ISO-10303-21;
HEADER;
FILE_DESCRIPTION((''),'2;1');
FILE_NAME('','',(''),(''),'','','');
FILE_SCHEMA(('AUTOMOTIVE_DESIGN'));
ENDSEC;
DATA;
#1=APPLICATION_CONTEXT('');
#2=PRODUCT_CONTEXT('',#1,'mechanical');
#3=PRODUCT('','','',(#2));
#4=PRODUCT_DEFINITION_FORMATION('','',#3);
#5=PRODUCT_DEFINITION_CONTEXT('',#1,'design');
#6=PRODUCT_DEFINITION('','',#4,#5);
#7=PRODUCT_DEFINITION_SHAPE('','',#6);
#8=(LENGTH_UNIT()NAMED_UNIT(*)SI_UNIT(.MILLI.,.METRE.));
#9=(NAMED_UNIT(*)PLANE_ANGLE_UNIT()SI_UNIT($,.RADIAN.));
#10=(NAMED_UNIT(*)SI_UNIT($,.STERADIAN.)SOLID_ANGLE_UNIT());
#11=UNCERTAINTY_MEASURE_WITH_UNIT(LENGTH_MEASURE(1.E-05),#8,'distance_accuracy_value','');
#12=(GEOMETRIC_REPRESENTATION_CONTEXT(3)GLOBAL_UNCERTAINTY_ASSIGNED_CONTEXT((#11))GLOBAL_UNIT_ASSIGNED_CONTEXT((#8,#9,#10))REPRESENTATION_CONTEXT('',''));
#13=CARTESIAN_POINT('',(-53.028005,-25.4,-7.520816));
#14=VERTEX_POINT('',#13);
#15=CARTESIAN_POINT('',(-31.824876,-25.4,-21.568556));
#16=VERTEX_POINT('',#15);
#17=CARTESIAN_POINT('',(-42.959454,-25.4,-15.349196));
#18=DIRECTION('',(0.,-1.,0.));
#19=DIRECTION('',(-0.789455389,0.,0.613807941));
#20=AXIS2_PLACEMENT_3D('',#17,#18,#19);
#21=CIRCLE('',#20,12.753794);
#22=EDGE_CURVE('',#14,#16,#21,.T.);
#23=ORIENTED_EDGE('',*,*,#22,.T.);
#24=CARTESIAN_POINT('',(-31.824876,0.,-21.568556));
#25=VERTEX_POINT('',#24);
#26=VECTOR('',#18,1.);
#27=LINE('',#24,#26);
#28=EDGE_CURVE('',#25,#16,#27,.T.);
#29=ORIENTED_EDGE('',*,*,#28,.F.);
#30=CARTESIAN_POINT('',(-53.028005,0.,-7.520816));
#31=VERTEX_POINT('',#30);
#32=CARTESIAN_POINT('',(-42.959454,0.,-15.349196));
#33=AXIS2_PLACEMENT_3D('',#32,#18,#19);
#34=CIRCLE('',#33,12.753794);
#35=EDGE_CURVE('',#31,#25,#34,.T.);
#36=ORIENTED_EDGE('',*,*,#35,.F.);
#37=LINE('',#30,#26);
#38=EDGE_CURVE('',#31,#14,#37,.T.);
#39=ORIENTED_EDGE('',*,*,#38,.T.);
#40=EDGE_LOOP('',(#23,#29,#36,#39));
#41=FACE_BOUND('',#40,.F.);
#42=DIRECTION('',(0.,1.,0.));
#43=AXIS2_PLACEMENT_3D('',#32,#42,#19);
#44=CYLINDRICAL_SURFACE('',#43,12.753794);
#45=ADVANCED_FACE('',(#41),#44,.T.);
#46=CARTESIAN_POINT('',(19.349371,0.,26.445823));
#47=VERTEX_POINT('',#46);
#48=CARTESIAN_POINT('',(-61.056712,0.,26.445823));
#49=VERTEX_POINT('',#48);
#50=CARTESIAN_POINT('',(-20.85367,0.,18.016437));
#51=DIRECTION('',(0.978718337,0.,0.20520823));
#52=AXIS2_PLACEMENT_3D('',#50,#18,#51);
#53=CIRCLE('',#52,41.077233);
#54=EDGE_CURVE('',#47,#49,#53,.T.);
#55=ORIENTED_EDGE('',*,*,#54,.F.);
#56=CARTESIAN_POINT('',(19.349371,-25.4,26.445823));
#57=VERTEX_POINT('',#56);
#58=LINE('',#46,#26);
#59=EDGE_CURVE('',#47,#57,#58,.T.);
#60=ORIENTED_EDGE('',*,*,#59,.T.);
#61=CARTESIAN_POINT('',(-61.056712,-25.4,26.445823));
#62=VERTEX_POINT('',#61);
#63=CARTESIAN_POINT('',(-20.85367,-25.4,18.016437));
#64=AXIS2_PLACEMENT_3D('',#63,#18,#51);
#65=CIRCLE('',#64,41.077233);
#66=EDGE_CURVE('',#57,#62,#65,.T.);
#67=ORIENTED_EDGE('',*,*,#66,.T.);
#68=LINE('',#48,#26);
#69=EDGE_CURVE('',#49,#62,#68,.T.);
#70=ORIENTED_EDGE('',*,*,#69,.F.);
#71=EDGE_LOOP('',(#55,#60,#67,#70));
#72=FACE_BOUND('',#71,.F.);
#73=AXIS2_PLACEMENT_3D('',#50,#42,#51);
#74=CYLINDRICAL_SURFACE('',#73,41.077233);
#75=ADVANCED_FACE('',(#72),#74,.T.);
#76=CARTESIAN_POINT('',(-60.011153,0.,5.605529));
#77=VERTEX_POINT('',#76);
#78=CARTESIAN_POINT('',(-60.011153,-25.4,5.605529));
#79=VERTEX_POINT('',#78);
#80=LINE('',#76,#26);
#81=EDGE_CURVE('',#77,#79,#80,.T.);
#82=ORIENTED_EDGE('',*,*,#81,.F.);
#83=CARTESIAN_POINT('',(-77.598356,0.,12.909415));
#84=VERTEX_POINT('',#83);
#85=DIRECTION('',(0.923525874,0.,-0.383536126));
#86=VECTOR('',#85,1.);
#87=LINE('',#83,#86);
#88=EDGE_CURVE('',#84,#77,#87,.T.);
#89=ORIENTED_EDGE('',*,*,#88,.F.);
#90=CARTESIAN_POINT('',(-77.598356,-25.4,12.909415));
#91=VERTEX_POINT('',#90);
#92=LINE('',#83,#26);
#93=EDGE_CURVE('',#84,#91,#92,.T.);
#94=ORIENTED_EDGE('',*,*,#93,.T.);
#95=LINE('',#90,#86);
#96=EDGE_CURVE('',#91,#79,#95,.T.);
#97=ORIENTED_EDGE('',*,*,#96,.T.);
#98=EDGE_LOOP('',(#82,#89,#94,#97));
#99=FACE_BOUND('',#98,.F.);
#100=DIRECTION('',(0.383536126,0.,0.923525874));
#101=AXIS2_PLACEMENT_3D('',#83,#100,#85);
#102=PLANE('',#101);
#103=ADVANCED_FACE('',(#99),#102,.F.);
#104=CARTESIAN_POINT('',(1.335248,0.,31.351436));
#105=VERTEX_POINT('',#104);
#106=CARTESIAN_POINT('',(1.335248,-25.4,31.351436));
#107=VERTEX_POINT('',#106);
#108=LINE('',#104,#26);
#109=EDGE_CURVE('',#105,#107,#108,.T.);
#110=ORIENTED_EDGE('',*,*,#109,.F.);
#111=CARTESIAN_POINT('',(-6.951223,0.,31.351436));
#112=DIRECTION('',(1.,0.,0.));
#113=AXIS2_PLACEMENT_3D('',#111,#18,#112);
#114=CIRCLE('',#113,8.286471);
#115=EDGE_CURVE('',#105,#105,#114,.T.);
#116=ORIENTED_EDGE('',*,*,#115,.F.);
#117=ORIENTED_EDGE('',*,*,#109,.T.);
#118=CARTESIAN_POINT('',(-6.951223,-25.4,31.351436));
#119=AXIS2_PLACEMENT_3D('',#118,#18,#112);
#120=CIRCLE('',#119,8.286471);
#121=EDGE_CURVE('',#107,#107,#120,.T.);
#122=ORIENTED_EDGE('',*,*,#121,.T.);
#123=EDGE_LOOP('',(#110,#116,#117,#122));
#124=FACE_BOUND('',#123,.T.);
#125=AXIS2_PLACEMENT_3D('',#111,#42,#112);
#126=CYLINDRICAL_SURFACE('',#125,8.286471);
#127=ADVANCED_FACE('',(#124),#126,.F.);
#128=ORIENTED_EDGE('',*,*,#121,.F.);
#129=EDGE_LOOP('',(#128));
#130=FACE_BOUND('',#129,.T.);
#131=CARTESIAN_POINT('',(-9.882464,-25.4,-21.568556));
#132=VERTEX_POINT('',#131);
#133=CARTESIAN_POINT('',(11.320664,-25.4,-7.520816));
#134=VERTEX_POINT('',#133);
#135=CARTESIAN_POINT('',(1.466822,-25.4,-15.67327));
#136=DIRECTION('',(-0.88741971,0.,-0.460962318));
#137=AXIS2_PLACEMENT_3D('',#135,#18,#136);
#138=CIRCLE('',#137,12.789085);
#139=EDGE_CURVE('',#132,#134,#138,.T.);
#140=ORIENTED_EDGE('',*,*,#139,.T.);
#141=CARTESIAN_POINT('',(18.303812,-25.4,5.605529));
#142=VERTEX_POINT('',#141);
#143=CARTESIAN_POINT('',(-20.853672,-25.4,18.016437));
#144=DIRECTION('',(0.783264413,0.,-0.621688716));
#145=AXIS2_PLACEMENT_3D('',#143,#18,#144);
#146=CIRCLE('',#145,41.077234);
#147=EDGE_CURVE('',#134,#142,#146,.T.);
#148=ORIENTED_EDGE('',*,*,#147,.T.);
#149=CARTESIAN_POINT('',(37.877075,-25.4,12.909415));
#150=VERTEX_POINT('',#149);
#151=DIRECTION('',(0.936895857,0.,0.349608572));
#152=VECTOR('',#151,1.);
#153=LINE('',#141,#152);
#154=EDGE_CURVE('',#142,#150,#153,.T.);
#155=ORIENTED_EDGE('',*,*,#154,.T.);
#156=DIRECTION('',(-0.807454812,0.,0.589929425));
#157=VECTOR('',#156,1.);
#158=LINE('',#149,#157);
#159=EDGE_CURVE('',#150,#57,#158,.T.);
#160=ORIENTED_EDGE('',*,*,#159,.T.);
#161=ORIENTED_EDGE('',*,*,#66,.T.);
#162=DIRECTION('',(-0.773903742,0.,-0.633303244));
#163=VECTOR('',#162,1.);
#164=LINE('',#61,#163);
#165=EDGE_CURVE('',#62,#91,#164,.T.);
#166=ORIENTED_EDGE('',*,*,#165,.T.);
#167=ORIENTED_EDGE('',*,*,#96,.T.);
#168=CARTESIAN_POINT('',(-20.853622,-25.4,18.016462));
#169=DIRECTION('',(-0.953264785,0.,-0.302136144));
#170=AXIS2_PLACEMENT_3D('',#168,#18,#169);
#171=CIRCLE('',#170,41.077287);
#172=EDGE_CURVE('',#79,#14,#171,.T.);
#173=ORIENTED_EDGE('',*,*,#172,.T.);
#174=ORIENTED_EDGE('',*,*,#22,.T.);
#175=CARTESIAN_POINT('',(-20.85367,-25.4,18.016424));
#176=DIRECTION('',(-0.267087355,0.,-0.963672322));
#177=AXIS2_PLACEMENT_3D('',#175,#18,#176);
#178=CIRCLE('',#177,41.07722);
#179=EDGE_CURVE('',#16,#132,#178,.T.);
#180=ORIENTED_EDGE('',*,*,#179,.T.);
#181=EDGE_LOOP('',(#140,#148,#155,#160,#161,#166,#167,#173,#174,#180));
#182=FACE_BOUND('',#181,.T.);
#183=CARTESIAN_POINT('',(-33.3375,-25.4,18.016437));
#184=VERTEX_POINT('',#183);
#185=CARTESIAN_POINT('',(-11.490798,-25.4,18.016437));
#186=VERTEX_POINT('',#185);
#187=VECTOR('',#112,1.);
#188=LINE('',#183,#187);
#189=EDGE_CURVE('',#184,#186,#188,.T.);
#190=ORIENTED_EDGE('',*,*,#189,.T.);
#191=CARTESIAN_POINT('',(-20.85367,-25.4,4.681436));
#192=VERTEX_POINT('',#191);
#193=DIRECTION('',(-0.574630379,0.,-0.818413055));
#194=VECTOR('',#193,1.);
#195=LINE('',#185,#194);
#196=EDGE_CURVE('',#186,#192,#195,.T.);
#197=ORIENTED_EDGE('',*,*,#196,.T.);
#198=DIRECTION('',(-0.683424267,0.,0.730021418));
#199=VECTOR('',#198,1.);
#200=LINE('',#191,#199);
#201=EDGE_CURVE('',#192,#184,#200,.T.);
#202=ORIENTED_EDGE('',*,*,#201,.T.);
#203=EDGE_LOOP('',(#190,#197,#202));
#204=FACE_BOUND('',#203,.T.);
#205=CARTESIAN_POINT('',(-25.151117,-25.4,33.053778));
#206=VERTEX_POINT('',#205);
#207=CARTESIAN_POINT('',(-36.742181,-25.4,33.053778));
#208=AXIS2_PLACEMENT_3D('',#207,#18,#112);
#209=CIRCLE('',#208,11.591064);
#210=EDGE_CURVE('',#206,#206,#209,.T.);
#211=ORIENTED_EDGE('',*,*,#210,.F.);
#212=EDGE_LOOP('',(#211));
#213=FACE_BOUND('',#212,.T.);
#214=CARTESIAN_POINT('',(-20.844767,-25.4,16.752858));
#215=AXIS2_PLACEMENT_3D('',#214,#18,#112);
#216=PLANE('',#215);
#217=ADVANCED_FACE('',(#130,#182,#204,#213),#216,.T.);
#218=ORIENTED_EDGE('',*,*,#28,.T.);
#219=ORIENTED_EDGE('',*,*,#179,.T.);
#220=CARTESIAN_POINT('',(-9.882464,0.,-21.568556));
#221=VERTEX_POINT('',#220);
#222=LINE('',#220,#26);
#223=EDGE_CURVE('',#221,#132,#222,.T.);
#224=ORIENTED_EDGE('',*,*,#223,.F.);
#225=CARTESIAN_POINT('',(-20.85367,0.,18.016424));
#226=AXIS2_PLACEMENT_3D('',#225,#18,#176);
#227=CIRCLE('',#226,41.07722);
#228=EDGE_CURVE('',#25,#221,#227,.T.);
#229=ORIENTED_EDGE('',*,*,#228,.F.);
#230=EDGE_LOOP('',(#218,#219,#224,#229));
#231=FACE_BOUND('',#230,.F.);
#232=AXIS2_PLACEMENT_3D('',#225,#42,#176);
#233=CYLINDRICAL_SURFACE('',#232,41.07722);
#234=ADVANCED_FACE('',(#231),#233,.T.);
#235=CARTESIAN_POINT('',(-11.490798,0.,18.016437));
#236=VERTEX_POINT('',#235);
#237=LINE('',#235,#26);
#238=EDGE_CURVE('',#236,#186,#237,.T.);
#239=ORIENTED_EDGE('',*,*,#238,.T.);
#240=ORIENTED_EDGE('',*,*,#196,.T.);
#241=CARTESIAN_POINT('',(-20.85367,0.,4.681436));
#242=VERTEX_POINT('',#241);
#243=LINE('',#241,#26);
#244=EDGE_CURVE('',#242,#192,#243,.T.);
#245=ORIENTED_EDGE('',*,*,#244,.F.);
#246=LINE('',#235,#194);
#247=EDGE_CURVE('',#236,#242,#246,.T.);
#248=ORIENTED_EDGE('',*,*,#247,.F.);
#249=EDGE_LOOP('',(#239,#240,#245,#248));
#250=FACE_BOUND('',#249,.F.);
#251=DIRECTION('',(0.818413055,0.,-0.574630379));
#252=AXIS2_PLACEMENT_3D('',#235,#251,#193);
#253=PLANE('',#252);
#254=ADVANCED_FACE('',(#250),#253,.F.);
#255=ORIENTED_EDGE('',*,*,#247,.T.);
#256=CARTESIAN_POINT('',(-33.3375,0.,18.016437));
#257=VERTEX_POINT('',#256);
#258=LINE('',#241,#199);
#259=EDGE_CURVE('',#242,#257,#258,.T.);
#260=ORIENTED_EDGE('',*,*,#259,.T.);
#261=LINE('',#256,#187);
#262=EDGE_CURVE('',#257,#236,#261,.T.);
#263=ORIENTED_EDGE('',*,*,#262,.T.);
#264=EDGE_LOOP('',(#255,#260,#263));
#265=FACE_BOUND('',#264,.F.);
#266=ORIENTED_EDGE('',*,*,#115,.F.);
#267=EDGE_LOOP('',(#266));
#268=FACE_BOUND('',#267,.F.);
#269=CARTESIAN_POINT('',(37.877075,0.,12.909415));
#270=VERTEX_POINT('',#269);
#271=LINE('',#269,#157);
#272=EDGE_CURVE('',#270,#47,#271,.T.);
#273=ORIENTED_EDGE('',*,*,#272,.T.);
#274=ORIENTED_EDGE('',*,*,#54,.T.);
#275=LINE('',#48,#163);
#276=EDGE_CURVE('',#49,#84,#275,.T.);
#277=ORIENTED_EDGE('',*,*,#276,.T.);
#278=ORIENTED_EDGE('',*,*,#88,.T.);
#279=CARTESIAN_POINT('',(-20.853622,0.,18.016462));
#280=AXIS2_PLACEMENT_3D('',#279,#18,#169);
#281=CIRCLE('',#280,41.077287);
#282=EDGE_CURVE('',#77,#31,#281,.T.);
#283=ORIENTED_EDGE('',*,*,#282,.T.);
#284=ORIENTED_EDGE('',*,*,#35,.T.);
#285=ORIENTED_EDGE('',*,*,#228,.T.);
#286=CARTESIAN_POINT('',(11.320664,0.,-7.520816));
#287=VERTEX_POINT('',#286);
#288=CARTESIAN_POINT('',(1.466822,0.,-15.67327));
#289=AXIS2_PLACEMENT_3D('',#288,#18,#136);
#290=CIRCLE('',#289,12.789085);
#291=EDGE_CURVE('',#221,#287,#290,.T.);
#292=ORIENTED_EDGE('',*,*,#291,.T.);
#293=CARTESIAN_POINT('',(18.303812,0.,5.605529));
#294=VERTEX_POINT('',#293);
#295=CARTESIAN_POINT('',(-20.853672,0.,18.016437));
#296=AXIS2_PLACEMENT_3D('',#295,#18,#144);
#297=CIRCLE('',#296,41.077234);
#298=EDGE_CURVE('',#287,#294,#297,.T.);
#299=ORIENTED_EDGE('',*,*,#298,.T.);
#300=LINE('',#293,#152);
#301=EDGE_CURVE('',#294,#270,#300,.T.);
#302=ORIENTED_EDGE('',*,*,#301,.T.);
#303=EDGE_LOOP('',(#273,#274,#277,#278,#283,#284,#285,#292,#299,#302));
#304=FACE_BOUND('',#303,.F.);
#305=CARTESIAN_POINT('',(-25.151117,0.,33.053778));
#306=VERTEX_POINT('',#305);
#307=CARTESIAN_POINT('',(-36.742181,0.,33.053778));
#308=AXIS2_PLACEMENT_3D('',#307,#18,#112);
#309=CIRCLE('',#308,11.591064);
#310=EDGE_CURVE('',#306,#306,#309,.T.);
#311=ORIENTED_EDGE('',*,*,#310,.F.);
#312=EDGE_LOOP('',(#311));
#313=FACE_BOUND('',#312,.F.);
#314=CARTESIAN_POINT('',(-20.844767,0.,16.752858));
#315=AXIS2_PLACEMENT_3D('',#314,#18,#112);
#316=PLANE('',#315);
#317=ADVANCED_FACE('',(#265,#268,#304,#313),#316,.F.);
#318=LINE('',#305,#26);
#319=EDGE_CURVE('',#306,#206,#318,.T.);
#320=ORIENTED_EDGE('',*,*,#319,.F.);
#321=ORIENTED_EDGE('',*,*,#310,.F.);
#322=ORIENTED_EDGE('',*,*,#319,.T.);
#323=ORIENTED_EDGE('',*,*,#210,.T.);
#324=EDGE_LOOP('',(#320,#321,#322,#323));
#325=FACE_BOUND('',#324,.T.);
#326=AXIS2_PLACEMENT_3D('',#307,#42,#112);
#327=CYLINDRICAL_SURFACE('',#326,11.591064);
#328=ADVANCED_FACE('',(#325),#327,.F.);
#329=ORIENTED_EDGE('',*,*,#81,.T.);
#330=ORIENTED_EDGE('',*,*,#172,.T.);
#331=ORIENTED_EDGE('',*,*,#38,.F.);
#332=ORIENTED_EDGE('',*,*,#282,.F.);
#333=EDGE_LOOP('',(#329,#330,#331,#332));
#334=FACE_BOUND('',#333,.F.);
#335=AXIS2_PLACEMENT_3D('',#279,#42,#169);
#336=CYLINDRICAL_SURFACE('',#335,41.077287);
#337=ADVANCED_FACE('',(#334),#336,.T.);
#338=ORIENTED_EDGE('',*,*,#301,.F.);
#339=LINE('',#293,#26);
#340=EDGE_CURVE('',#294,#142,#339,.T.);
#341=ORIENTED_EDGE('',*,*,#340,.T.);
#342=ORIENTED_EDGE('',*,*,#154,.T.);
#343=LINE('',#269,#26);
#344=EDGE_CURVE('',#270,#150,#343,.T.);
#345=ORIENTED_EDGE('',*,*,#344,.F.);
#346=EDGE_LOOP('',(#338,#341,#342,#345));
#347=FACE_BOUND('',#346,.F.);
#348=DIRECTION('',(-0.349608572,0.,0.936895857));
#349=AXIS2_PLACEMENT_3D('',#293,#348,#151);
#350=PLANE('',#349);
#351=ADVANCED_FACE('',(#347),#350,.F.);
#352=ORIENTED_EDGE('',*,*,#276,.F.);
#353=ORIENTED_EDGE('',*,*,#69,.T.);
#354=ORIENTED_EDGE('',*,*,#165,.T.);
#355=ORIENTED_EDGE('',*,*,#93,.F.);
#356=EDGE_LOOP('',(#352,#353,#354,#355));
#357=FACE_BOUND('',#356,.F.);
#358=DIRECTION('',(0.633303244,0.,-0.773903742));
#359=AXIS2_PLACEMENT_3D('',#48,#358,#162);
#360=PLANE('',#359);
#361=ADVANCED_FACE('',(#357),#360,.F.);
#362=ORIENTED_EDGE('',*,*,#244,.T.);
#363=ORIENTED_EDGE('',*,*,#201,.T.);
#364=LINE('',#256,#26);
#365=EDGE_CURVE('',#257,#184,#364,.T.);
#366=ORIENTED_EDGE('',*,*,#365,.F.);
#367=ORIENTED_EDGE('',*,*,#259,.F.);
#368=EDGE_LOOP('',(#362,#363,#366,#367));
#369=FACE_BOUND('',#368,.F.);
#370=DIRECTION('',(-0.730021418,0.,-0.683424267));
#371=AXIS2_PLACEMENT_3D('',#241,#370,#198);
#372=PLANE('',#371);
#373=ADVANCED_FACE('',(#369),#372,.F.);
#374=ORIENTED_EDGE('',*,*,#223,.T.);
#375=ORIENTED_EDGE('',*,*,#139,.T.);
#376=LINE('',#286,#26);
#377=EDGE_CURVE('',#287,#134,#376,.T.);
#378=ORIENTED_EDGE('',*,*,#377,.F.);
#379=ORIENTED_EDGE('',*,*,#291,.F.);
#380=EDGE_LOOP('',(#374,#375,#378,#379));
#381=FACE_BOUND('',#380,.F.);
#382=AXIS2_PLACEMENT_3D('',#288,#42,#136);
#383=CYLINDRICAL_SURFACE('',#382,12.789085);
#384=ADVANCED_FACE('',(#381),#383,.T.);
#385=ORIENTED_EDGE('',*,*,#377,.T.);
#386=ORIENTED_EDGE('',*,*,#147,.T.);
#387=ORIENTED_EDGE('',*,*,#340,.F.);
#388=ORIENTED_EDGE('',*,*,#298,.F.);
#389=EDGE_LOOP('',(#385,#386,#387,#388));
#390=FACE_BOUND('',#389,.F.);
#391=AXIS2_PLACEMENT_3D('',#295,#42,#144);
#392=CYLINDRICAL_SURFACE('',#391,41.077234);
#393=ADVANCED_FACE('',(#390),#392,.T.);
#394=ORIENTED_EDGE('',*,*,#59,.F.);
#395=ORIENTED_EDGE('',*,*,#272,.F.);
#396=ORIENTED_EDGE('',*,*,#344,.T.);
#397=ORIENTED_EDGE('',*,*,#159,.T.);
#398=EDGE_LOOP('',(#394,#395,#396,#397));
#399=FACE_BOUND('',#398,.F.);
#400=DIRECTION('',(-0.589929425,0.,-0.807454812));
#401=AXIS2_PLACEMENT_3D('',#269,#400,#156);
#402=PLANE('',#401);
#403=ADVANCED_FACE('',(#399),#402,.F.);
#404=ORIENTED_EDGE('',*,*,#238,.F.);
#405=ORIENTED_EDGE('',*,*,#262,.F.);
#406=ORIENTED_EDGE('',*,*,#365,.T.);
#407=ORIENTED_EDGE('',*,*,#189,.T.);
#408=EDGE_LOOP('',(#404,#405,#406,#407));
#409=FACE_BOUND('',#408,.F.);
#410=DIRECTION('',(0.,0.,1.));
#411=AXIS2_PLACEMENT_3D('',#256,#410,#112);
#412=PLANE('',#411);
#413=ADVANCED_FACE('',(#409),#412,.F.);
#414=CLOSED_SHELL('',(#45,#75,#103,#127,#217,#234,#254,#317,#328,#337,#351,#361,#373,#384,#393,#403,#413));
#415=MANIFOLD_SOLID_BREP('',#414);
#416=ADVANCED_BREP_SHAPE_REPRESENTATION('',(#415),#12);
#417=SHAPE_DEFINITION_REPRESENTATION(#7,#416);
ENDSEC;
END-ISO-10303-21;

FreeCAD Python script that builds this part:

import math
import FreeCAD as App
import Part
import Sketcher

V = App.Vector
Q = App.Units.Quantity


def add_polygon(sketch, points):
    """Adds a closed chain of lines whose ends are joined by coincident constraints."""
    first, n = sketch.GeometryCount, len(points)
    for a, b in zip(points, points[1:] + points[:1]):
        sketch.addGeometry(Part.LineSegment(App.Vector(*a, 0), App.Vector(*b, 0)), False)
    for i in range(n):
        sketch.addConstraint(Sketcher.Constraint("Coincident", first + i, 2, first + (i + 1) % n, 1))

doc = App.newDocument("Part")
body = doc.addObject("PartDesign::Body", "Body")

sketch1 = doc.addObject("Sketcher::SketchObject", "Sketch")
body.addObject(sketch1)
sketch1.AttachmentSupport = (doc.XZ_Plane, [""])
sketch1.MapMode = "FlatFace"
sketch1.addGeometry(Part.ArcOfCircle(Part.Circle(V(-20.853672, 18.016437, 0), V(0, 0, 1), 41.077234), math.radians(-38.439559), math.radians(-17.585937)), False)
sketch1.addGeometry(Part.LineSegment(V(18.303812, 5.605529, 0), V(37.877075, 12.909415, 0)), False)
sketch1.addGeometry(Part.LineSegment(V(37.877075, 12.909415, 0), V(19.349371, 26.445823, 0)), False)
sketch1.addGeometry(Part.ArcOfCircle(Part.Circle(V(-20.85367, 18.016437, 0), V(0, 0, 1), 41.077233), math.radians(11.841689), math.radians(168.158311)), False)
sketch1.addGeometry(Part.LineSegment(V(-61.056712, 26.445823, 0), V(-77.598356, 12.909415, 0)), False)
sketch1.addGeometry(Part.LineSegment(V(-77.598356, 12.909415, 0), V(-60.011153, 5.605529, 0)), False)
sketch1.addGeometry(Part.ArcOfCircle(Part.Circle(V(-20.853622, 18.016462, 0), V(0, 0, 1), 41.077287), math.radians(-162.41405), math.radians(-141.560455)), False)
sketch1.addGeometry(Part.ArcOfCircle(Part.Circle(V(-42.959454, -15.349196, 0), V(0, 0, 1), 12.753794), math.radians(142.134646), math.radians(330.813902)), False)
sketch1.addGeometry(Part.ArcOfCircle(Part.Circle(V(-20.85367, 18.016424, 0), V(0, 0, 1), 41.07722), math.radians(-105.491021), math.radians(-74.508979)), False)
sketch1.addGeometry(Part.ArcOfCircle(Part.Circle(V(1.466822, -15.67327, 0), V(0, 0, 1), 12.789085), math.radians(-152.550778), math.radians(39.602233)), False)
add_polygon(sketch1, [(-20.85367, 4.681436), (-33.3375, 18.016437), (-11.490798, 18.016437)])
sketch1.addGeometry(Part.Circle(V(-36.742181, 33.053778, 0), V(0, 0, 1), 11.591064), False)
sketch1.addGeometry(Part.Circle(V(-6.951223, 31.351436, 0), V(0, 0, 1), 8.286471), False)
sketch1.addConstraint([
    Sketcher.Constraint("Coincident", 0, 2, 1, 1),
    Sketcher.Constraint("Coincident", 1, 2, 2, 1),
    Sketcher.Constraint("Coincident", 2, 2, 3, 1),
    Sketcher.Constraint("Coincident", 3, 2, 4, 1),
    Sketcher.Constraint("Coincident", 4, 2, 5, 1),
    Sketcher.Constraint("Coincident", 5, 2, 6, 1),
    Sketcher.Constraint("Coincident", 6, 2, 7, 1),
    Sketcher.Constraint("Coincident", 7, 2, 8, 1),
    Sketcher.Constraint("Coincident", 8, 2, 9, 1),
    Sketcher.Constraint("Coincident", 9, 2, 0, 1),
    Sketcher.Constraint("Horizontal", 11),
    Sketcher.Constraint("Coincident", 3, 3, 0, 3),
    Sketcher.Constraint("DistanceX", 10, 2, -1, 1, Q("1.3125 in")),
    Sketcher.Constraint("Radius", 8, Q("41.07722 mm")),
    Sketcher.Constraint("DistanceY", 3, 3, 14, 3, Q("0.525 in")),
    Sketcher.Constraint("DistanceY", 11, 2, 14, 3, Q("0.525 in")),
    Sketcher.Constraint("DistanceY", 12, 2, 3, 3, Q("0.525 in")),
    Sketcher.Constraint("Diameter", 13, Q("23.182128 mm")),
    Sketcher.Constraint("Diameter", 14, Q("16.572942 mm")),
    Sketcher.Constraint("Radius", 0, Q("41.077234 mm")),
    Sketcher.Constraint("Radius", 3, Q("41.077233 mm")),
    Sketcher.Constraint("Radius", 6, Q("41.077287 mm")),
    Sketcher.Constraint("Radius", 7, Q("12.753794 mm")),
    Sketcher.Constraint("Radius", 9, Q("12.789085 mm")),
    Sketcher.Constraint("DistanceX", 6, 3, 14, 3, Q("13.902399 mm")),
    Sketcher.Constraint("DistanceY", 9, 3, 0, 2, Q("21.278799 mm")),
    Sketcher.Constraint("DistanceY", 8, 3, 3, 2, Q("8.429399 mm")),
    Sketcher.Constraint("DistanceX", 5, 2, 7, 3, Q("17.051699 mm")),
    Sketcher.Constraint("DistanceX", 7, 2, 9, 3, Q("33.291698 mm")),
    Sketcher.Constraint("Distance", 1, Q("20.89161 mm")),
    Sketcher.Constraint("Distance", 2, Q("22.945809 mm")),
    Sketcher.Constraint("Distance", 4, Q("21.374291 mm")),
    Sketcher.Constraint("Distance", 5, Q("19.043541 mm")),
    Sketcher.Constraint("Distance", 10, Q("18.266589 mm")),
    Sketcher.Constraint("Distance", 12, Q("16.29373 mm")),
    Sketcher.Constraint("DistanceX", 0, 3, -1, 1, Q("20.853672 mm")),
    Sketcher.Constraint("DistanceX", 8, 3, -1, 1, Q("20.85367 mm")),
    Sketcher.Constraint("DistanceY", 9, 3, -1, 1, Q("15.67327 mm")),
    Sketcher.Constraint("DistanceX", 13, 3, -1, 1, Q("36.742181 mm")),
    Sketcher.Constraint("DistanceX", -1, 1, 0, 2, Q("18.303812 mm")),
    Sketcher.Constraint("DistanceX", -1, 1, 2, 2, Q("19.349371 mm")),
    Sketcher.Constraint("DistanceX", 3, 2, -1, 1, Q("61.056712 mm")),
    Sketcher.Constraint("DistanceY", -1, 1, 5, 2, Q("5.605529 mm")),
    Sketcher.Constraint("DistanceX", 7, 3, 6, 3, Q("22.105831 mm")),
    Sketcher.Constraint("DistanceY", 7, 3, 8, 3, Q("33.36562 mm")),
    Sketcher.Constraint("DistanceY", 0, 3, 13, 3, Q("15.037341 mm")),
    Sketcher.Constraint("DistanceX", 13, 3, 6, 3, Q("15.888559 mm")),
])
pad1 = doc.addObject("PartDesign::Pad", "Pad")
body.addObject(pad1)
pad1.Profile = sketch1
pad1.Length = Q("1 in")

doc.recompute()
